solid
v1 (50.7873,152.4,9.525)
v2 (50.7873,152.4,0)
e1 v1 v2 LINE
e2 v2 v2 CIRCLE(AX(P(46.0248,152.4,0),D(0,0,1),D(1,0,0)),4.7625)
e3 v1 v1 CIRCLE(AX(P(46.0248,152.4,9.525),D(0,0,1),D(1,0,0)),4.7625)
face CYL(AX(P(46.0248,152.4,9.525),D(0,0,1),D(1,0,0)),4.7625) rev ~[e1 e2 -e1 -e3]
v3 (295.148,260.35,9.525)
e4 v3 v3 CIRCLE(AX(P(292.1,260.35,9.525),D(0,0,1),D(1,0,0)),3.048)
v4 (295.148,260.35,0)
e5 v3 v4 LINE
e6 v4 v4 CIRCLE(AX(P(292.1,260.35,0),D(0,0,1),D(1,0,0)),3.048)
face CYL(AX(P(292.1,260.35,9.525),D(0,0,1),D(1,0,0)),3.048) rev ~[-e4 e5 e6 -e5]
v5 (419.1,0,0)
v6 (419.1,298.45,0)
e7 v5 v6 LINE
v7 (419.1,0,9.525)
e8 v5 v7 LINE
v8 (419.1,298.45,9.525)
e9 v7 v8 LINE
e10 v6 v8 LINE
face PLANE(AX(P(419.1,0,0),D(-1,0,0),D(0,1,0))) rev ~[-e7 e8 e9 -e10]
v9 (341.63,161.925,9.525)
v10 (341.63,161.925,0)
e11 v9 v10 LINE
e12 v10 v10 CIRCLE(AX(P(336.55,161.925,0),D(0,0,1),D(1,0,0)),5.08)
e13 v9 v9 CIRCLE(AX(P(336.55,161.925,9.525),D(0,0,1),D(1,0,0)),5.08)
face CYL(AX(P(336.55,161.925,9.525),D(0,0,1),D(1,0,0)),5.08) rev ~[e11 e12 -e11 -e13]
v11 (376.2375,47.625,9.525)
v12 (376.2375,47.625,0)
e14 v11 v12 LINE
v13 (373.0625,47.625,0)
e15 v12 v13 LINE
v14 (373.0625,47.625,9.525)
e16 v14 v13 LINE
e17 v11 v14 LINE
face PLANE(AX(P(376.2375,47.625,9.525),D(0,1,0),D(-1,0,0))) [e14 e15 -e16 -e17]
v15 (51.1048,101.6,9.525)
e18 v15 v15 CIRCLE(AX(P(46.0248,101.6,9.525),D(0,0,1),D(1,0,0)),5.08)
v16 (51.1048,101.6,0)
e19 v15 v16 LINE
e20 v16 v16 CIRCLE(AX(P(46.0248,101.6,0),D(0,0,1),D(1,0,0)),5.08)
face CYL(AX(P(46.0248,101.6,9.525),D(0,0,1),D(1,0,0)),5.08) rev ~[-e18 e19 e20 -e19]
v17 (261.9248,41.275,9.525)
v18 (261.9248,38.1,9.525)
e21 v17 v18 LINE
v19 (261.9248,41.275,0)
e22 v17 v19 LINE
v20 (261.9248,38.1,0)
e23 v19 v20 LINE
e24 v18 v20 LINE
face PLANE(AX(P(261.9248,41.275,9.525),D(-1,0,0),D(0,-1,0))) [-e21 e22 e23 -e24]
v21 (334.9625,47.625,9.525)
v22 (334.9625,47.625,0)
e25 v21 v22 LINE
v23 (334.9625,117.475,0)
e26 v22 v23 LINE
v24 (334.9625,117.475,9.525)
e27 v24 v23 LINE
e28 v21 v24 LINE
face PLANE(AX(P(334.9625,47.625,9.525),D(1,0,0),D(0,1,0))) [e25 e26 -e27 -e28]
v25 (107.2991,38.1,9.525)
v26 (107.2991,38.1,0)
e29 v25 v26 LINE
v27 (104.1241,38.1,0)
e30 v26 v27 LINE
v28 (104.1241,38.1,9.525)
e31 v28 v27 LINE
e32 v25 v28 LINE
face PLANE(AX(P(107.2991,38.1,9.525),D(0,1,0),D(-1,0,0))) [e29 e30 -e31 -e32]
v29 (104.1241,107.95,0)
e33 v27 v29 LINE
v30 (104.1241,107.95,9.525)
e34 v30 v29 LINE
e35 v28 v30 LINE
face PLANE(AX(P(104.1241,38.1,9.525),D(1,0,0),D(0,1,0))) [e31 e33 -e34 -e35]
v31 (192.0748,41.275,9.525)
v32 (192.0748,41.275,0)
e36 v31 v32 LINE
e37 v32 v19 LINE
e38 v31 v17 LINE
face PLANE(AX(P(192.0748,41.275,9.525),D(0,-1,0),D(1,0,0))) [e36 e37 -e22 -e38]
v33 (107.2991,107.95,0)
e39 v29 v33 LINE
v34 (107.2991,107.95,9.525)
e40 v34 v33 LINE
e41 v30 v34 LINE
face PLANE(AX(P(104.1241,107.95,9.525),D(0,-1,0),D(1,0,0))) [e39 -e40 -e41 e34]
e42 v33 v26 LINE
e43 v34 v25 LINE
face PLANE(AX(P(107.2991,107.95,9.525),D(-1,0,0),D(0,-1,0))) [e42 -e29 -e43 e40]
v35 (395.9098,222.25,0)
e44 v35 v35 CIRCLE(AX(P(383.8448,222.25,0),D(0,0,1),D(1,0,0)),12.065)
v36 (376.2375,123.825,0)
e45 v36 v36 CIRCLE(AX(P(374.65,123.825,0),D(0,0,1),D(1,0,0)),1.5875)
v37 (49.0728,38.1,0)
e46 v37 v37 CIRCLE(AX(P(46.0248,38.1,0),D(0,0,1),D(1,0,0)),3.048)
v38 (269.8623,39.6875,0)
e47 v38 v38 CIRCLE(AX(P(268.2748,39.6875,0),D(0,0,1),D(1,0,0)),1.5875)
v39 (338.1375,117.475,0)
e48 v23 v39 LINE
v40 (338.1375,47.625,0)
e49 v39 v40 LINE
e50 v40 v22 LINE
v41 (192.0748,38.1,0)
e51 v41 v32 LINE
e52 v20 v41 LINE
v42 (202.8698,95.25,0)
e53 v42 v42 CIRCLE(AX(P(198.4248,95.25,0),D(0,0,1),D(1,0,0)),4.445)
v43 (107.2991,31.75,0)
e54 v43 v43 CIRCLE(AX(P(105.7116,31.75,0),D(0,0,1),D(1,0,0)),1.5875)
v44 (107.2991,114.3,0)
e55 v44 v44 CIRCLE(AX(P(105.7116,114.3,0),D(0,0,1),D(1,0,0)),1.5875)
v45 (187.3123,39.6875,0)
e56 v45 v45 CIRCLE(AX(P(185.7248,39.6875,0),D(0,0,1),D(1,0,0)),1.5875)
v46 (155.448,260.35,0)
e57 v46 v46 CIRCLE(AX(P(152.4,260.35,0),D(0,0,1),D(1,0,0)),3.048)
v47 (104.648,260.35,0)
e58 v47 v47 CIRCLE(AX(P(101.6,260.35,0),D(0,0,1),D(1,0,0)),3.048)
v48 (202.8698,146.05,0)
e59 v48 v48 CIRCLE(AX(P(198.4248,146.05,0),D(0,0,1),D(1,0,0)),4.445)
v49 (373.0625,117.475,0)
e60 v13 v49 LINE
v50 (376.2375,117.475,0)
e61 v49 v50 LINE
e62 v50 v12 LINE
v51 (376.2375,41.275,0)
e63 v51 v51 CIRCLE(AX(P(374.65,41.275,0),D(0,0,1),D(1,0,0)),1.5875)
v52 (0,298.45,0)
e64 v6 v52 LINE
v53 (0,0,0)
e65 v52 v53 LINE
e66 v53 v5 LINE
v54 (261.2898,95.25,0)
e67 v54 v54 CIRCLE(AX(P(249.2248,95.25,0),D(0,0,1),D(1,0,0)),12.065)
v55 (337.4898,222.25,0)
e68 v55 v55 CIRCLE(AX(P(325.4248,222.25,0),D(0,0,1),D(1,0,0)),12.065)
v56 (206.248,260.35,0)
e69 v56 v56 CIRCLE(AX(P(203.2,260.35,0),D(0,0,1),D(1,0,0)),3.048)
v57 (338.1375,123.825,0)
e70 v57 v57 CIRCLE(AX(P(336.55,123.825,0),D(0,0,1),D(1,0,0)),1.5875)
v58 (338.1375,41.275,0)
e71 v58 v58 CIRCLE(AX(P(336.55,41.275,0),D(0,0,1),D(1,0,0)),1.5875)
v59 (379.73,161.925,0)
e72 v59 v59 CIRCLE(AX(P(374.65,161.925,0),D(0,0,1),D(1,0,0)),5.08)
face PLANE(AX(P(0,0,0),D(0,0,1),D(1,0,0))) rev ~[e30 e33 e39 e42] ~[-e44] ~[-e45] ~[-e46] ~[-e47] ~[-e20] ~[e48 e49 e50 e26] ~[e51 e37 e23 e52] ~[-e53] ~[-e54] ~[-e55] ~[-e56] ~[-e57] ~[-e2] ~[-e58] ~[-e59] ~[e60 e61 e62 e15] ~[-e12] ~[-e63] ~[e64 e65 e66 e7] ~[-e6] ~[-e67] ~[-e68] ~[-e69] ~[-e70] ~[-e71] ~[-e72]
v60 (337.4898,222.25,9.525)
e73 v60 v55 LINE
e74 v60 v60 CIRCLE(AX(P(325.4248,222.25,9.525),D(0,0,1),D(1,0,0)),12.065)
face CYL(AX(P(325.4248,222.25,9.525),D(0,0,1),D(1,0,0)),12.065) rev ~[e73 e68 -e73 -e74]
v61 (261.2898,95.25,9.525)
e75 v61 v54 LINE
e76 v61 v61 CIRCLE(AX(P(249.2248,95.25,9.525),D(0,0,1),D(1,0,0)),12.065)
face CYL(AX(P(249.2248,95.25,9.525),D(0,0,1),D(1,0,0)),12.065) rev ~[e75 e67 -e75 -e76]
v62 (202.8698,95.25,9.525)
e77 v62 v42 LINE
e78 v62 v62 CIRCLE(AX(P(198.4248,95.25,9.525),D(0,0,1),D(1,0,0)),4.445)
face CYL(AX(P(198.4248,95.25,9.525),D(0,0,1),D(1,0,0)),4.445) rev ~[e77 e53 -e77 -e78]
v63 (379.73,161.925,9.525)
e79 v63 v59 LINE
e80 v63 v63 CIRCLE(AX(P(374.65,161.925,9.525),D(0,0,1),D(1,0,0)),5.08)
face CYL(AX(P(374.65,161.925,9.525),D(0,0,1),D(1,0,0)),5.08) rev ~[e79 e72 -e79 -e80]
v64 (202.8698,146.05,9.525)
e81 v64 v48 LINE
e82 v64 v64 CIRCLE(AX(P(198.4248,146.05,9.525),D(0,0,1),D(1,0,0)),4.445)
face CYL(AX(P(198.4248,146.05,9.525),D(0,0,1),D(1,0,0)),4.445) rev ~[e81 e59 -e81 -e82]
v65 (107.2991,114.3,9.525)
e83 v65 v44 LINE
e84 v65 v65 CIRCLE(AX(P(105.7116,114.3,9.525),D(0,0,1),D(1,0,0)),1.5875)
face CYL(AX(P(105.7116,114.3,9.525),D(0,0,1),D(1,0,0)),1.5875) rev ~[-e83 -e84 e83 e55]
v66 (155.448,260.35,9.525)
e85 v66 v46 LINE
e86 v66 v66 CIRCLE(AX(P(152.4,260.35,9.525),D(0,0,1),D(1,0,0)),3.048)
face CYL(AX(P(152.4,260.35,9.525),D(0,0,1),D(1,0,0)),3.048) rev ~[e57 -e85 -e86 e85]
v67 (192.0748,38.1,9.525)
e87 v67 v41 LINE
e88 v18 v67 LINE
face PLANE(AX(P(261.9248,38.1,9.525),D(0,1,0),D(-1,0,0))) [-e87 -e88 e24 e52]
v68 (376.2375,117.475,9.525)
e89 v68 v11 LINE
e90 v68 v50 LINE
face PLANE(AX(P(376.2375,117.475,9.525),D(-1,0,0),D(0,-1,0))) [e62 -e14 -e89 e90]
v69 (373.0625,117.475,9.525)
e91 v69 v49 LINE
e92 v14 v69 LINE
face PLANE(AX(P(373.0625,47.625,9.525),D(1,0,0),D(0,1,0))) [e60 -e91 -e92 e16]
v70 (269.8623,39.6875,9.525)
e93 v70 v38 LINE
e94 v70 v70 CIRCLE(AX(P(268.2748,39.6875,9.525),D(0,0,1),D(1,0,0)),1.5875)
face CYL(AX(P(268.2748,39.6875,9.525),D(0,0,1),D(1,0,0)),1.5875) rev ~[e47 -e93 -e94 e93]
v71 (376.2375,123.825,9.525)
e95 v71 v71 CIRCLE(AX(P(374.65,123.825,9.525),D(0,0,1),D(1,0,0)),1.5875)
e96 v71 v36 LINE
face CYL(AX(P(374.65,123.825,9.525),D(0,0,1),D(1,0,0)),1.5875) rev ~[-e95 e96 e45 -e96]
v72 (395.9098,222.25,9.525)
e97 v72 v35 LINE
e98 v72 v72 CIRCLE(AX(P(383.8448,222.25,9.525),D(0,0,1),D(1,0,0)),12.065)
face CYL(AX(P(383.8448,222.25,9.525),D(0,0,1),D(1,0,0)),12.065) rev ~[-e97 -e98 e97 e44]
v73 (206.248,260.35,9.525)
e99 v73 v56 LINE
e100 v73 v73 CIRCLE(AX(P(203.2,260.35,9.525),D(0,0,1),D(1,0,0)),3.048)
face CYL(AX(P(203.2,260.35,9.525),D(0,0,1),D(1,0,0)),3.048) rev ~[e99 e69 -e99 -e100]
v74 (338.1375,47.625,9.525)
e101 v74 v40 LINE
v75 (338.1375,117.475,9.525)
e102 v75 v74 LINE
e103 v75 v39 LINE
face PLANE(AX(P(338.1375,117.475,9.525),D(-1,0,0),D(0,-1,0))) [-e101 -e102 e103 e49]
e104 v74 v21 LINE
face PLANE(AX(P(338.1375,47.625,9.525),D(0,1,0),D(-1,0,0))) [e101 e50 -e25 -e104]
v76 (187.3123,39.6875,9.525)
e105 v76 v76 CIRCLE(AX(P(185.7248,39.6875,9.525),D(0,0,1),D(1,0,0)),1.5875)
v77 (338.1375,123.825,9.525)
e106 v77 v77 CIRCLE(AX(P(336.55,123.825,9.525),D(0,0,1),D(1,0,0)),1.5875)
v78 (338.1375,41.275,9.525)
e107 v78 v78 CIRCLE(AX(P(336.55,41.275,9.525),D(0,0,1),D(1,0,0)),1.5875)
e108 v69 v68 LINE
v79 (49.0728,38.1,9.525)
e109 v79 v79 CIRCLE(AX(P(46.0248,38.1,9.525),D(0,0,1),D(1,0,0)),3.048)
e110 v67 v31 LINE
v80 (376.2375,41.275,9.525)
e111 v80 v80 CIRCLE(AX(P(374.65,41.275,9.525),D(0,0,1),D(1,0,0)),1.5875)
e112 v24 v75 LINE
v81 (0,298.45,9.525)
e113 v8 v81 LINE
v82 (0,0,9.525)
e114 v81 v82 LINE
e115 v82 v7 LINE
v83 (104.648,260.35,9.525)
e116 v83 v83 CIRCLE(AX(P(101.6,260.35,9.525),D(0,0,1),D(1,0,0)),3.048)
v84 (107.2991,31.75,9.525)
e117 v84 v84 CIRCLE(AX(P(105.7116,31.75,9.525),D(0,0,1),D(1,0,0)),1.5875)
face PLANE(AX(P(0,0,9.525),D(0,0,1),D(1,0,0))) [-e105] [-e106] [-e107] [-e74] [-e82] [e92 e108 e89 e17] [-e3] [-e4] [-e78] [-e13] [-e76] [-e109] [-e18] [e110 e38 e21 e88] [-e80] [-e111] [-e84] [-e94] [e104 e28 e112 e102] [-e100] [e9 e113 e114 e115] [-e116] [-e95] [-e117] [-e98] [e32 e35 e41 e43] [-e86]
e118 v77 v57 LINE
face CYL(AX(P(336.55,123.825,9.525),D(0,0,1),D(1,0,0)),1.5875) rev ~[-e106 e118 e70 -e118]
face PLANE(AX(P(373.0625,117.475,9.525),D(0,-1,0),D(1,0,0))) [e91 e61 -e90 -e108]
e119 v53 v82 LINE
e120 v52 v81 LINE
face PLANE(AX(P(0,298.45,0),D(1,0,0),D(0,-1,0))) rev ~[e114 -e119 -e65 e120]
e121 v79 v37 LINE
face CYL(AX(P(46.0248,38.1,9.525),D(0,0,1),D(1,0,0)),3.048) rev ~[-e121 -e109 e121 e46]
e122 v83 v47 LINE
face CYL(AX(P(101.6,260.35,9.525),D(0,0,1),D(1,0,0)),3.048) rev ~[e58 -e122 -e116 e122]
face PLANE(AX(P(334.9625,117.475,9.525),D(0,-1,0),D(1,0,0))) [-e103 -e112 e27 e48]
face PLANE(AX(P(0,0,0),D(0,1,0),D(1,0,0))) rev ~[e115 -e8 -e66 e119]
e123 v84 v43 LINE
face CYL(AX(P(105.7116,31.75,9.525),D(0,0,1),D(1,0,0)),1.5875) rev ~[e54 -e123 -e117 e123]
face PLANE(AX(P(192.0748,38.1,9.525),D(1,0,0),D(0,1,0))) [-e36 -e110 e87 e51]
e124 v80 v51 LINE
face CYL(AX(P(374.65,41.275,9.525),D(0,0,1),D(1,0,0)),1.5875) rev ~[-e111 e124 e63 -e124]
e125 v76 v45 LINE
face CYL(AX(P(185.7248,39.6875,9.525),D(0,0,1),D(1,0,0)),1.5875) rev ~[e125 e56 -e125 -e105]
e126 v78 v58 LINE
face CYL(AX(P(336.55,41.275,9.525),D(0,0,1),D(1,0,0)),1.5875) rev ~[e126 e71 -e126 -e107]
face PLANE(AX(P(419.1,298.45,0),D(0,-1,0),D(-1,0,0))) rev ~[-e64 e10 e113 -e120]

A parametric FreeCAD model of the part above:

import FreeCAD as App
import Part
import Sketcher
from FreeCAD import Vector
Q = App.Units.Quantity

doc = App.newDocument("Part")
body = doc.addObject("PartDesign::Body", "Body")

# Sketch on XY plane
sketch1 = body.newObject("Sketcher::SketchObject", "Sketch")
sketch1.AttachmentSupport = (doc.getObject("XY_Plane"), [""])
sketch1.MapMode = "FlatFace"
sketch1.addGeometry([
    Part.LineSegment(Vector(0, 298, 0), Vector(0, 0, 0)),
    Part.LineSegment(Vector(0, 0, 0), Vector(419, 0, 0)),
    Part.LineSegment(Vector(419, 0, 0), Vector(419, 298, 0)),
    Part.LineSegment(Vector(419, 298, 0), Vector(0, 298, 0)),
], False)
sketch1.addConstraint([
    Sketcher.Constraint("Coincident", 0, 2, 1, 1),
    Sketcher.Constraint("Coincident", 1, 2, 2, 1),
    Sketcher.Constraint("Coincident", 2, 2, 3, 1),
    Sketcher.Constraint("Coincident", 3, 2, 0, 1),
    Sketcher.Constraint("Vertical", 0),
    Sketcher.Constraint("Horizontal", 1),
    Sketcher.Constraint("Vertical", 2),
    Sketcher.Constraint("Horizontal", 3),
    Sketcher.Constraint("Coincident", 0, 2, -1, 1),
    Sketcher.Constraint("DistanceX", 1, 1, 1, 2, Q("16.5 in")),
    Sketcher.Constraint("DistanceY", 0, 2, 0, 1, Q("11.75 in")),
])
pad1 = body.newObject("PartDesign::Pad", "Pad")
pad1.Profile = sketch1
pad1.Length = Q("0.375 in")

# Sketch on XY plane
sketch2 = body.newObject("Sketcher::SketchObject", "Sketch001")
sketch2.AttachmentSupport = (doc.getObject("XY_Plane"), [""])
sketch2.MapMode = "FlatFace"
sketch2.AttachmentOffset = App.Placement(Vector(0, 0, 0.375 * 25.4), App.Rotation())
sketch2.addGeometry([
    Part.LineSegment(Vector(376.2, 117.5, 0), Vector(373.1, 117.5, 0)),  # 0
    Part.LineSegment(Vector(373.1, 117.5, 0), Vector(373.1, 47.6, 0)),  # 1
    Part.LineSegment(Vector(373.1, 47.6, 0), Vector(376.2, 47.6, 0)),  # 2
    Part.LineSegment(Vector(376.2, 47.6, 0), Vector(376.2, 117.5, 0)),  # 3
    Part.Circle(Vector(374.6, 41.3, 0), Vector(0, 0, 1), 1.6),  # 4
    Part.Circle(Vector(374.6, 123.8, 0), Vector(0, 0, 1), 1.6),  # 5
    Part.Circle(Vector(374.6, 161.9, 0), Vector(0, 0, 1), 5.1),  # 6
    Part.Circle(Vector(336.6, 41.3, 0), Vector(0, 0, 1), 1.6),  # 7
    Part.LineSegment(Vector(335, 47.6, 0), Vector(338.1, 47.6, 0)),  # 8
    Part.LineSegment(Vector(338.1, 47.6, 0), Vector(338.1, 117.5, 0)),  # 9
    Part.LineSegment(Vector(338.1, 117.5, 0), Vector(335, 117.5, 0)),  # 10
    Part.LineSegment(Vector(335, 117.5, 0), Vector(335, 47.6, 0)),  # 11
    Part.Circle(Vector(336.6, 123.8, 0), Vector(0, 0, 1), 1.6),  # 12
    Part.Circle(Vector(336.6, 161.9, 0), Vector(0, 0, 1), 5.1),  # 13
    Part.Circle(Vector(383.8, 222.2, 0), Vector(0, 0, 1), 12.1),  # 14
    Part.Circle(Vector(325.4, 222.2, 0), Vector(0, 0, 1), 12.1),  # 15
], False)
sketch2.addConstraint([
    Sketcher.Constraint("Coincident", 0, 2, 1, 1),
    Sketcher.Constraint("Coincident", 1, 2, 2, 1),
    Sketcher.Constraint("Coincident", 2, 2, 3, 1),
    Sketcher.Constraint("Coincident", 3, 2, 0, 1),
    Sketcher.Constraint("Coincident", 8, 2, 9, 1),
    Sketcher.Constraint("Coincident", 9, 2, 10, 1),
    Sketcher.Constraint("Coincident", 10, 2, 11, 1),
    Sketcher.Constraint("Coincident", 11, 2, 8, 1),
    Sketcher.Constraint("Horizontal", 0),
    Sketcher.Constraint("Vertical", 1),
    Sketcher.Constraint("Horizontal", 2),
    Sketcher.Constraint("Vertical", 3),
    Sketcher.Constraint("Horizontal", 8),
    Sketcher.Constraint("Vertical", 9),
    Sketcher.Constraint("Horizontal", 10),
    Sketcher.Constraint("Vertical", 11),
    Sketcher.Constraint("Equal", 4, 5),
    Sketcher.Constraint("Equal", 5, 7),
    Sketcher.Constraint("Equal", 7, 12),
    Sketcher.Constraint("Equal", 6, 13),
    Sketcher.Constraint("Equal", 14, 15),
    Sketcher.Constraint("Horizontal", 4, 3, 7, 3),
    Sketcher.Constraint("Horizontal", 5, 3, 12, 3),
    Sketcher.Constraint("Horizontal", 6, 3, 13, 3),
    Sketcher.Constraint("Horizontal", 14, 3, 15, 3),
    Sketcher.Constraint("Horizontal", 2, 2, 8, 2),
    Sketcher.Constraint("Horizontal", 3, 2, 9, 2),
    Sketcher.Constraint("Vertical", 4, 3, 5, 3),
    Sketcher.Constraint("Vertical", 5, 3, 6, 3),
    Sketcher.Constraint("Vertical", 7, 3, 12, 3),
    Sketcher.Constraint("Vertical", 12, 3, 13, 3),
    Sketcher.Constraint("Equal", 2, 8),
    Sketcher.Constraint("Diameter", 6, Q("0.4 in")),
    Sketcher.Constraint("Diameter", 14, Q("0.95 in")),
    Sketcher.Constraint("Diameter", 4, Q("0.125 in")),
    Sketcher.Constraint("DistanceY", 1, 2, 1, 1, Q("2.75 in")),
    Sketcher.Constraint("DistanceY", 5, 3, 6, 3, Q("1.5 in")),
    Sketcher.Constraint("DistanceX", 7, 3, 4, 3, Q("1.5 in")),
    Sketcher.Constraint("DistanceX", 15, 3, 14, 3, Q("2.3 in")),
    Sketcher.Constraint("DistanceX", 8, 2, 2, 2, Q("1.5 in")),
    Sketcher.Constraint("DistanceX", 0, 2, 0, 1, Q("0.125 in")),
    Sketcher.Constraint("DistanceY", 0, 2, 5, 3, Q("0.25 in")),
    Sketcher.Constraint("DistanceY", 4, 3, 1, 2, Q("0.25 in")),
    Sketcher.Constraint("DistanceY", -1, 1, 1, 2, Q("1.875 in")),
    Sketcher.Constraint("DistanceY", 6, 3, 14, 3, Q("2.375 in")),
    Sketcher.Constraint("DistanceX", -1, 1, 4, 3, Q("14.75 in")),
    Sketcher.Constraint("DistanceX", -1, 1, 14, 3, Q("15.112 in")),
    Sketcher.Constraint("DistanceX", -1, 1, 0, 2, Q("14.6875 in")),
])
pocket1 = body.newObject("PartDesign::Pocket", "Pocket")
pocket1.Profile = sketch2
pocket1.Length = Q("0.375 in")

# Sketch on XY plane
sketch3 = body.newObject("Sketcher::SketchObject", "Sketch002")
sketch3.AttachmentSupport = (doc.getObject("XY_Plane"), [""])
sketch3.MapMode = "FlatFace"
sketch3.AttachmentOffset = App.Placement(Vector(0, 0, 0.375 * 25.4), App.Rotation())
sketch3.addGeometry([
    Part.LineSegment(Vector(192.1, 38.1, 0), Vector(261.9, 38.1, 0)),  # 0
    Part.LineSegment(Vector(261.9, 38.1, 0), Vector(261.9, 41.3, 0)),  # 1
    Part.LineSegment(Vector(261.9, 41.3, 0), Vector(192.1, 41.3, 0)),  # 2
    Part.LineSegment(Vector(192.1, 41.3, 0), Vector(192.1, 38.1, 0)),  # 3
    Part.Circle(Vector(185.7, 39.7, 0), Vector(0, 0, 1), 1.6),  # 4
    Part.Circle(Vector(268.3, 39.7, 0), Vector(0, 0, 1), 1.6),  # 5
    Part.Circle(Vector(249.2, 95.2, 0), Vector(0, 0, 1), 12.1),  # 6
    Part.Circle(Vector(198.4, 95.2, 0), Vector(0, 0, 1), 4.4),  # 7
    Part.Circle(Vector(198.4, 146.1, 0), Vector(0, 0, 1), 4.4),  # 8
], False)
sketch3.addConstraint([
    Sketcher.Constraint("Coincident", 0, 2, 1, 1),
    Sketcher.Constraint("Coincident", 1, 2, 2, 1),
    Sketcher.Constraint("Coincident", 2, 2, 3, 1),
    Sketcher.Constraint("Coincident", 3, 2, 0, 1),
    Sketcher.Constraint("Horizontal", 0),
    Sketcher.Constraint("Vertical", 1),
    Sketcher.Constraint("Horizontal", 2),
    Sketcher.Constraint("Vertical", 3),
    Sketcher.Constraint("Equal", 4, 5),
    Sketcher.Constraint("Equal", 7, 8),
    Sketcher.Constraint("Horizontal", 4, 3, 5, 3),
    Sketcher.Constraint("Horizontal", 6, 3, 7, 3),
    Sketcher.Constraint("Vertical", 7, 3, 8, 3),
    Sketcher.Constraint("Diameter", 6, Q("0.95 in")),
    Sketcher.Constraint("Diameter", 7, Q("0.35 in")),
    Sketcher.Constraint("Diameter", 4, Q("0.125 in")),
    Sketcher.Constraint("DistanceX", 7, 3, 6, 3, Q("2 in")),
    Sketcher.Constraint("DistanceY", 7, 3, 8, 3, Q("2 in")),
    Sketcher.Constraint("DistanceX", 0, 1, 0, 2, Q("2.75 in")),
    Sketcher.Constraint("DistanceY", -1, 1, 0, 2, Q("1.5 in")),
    Sketcher.Constraint("DistanceY", 1, 1, 1, 2, Q("0.125 in")),
    Sketcher.Constraint("DistanceY", -1, 1, 6, 3, Q("3.75 in")),
    Sketcher.Constraint("DistanceX", 7, 3, 5, 3, Q("2.75 in")),
    Sketcher.Constraint("DistanceX", 0, 2, 5, 3, Q("0.25 in")),
    Sketcher.Constraint("DistanceX", 4, 3, 2, 2, Q("0.25 in")),
    Sketcher.Constraint("DistanceX", -1, 1, 4, 3, Q("7.312 in")),
    Sketcher.Constraint("DistanceY", -1, 1, 4, 3, Q("1.5625 in")),
])
pocket2 = body.newObject("PartDesign::Pocket", "Pocket001")
pocket2.Profile = sketch3
pocket2.Length = Q("0.375 in")

# Sketch on XY plane
sketch4 = body.newObject("Sketcher::SketchObject", "Sketch003")
sketch4.AttachmentSupport = (doc.getObject("XY_Plane"), [""])
sketch4.MapMode = "FlatFace"
sketch4.AttachmentOffset = App.Placement(Vector(0, 0, 0.375 * 25.4), App.Rotation())
sketch4.addGeometry([
    Part.LineSegment(Vector(107.3, 108, 0), Vector(104.1, 108, 0)),  # 0
    Part.LineSegment(Vector(104.1, 108, 0), Vector(104.1, 38.1, 0)),  # 1
    Part.LineSegment(Vector(104.1, 38.1, 0), Vector(107.3, 38.1, 0)),  # 2
    Part.LineSegment(Vector(107.3, 38.1, 0), Vector(107.3, 108, 0)),  # 3
    Part.Circle(Vector(105.7, 31.8, 0), Vector(0, 0, 1), 1.6),  # 4
    Part.Circle(Vector(105.7, 114.3, 0), Vector(0, 0, 1), 1.6),  # 5
    Part.Circle(Vector(46, 101.6, 0), Vector(0, 0, 1), 5.1),  # 6
    Part.Circle(Vector(46, 38.1, 0), Vector(0, 0, 1), 3),  # 7
    Part.Circle(Vector(46, 152.4, 0), Vector(0, 0, 1), 4.8),  # 8
], False)
sketch4.addConstraint([
    Sketcher.Constraint("Coincident", 0, 2, 1, 1),
    Sketcher.Constraint("Coincident", 1, 2, 2, 1),
    Sketcher.Constraint("Coincident", 2, 2, 3, 1),
    Sketcher.Constraint("Coincident", 3, 2, 0, 1),
    Sketcher.Constraint("Horizontal", 0),
    Sketcher.Constraint("Vertical", 1),
    Sketcher.Constraint("Horizontal", 2),
    Sketcher.Constraint("Vertical", 3),
    Sketcher.Constraint("Equal", 4, 5),
    Sketcher.Constraint("Horizontal", 7, 3, 1, 2),
    Sketcher.Constraint("Vertical", 4, 3, 5, 3),
    Sketcher.Constraint("Vertical", 6, 3, 7, 3),
    Sketcher.Constraint("Vertical", 7, 3, 8, 3),
    Sketcher.Constraint("Diameter", 6, Q("0.4 in")),
    Sketcher.Constraint("Diameter", 7, Q("0.24 in")),
    Sketcher.Constraint("Diameter", 4, Q("0.125 in")),
    Sketcher.Constraint("Diameter", 8, Q("0.375 in")),
    Sketcher.Constraint("DistanceY", -1, 1, 6, 3, Q("4 in")),
    Sketcher.Constraint("DistanceY", 6, 3, 8, 3, Q("2 in")),
    Sketcher.Constraint("DistanceY", 1, 2, 1, 1, Q("2.75 in")),
    Sketcher.Constraint("DistanceY", -1, 1, 5, 3, Q("4.5 in")),
    Sketcher.Constraint("DistanceY", -1, 1, 7, 3, Q("1.5 in")),
    Sketcher.Constraint("DistanceX", 0, 2, 0, 1, Q("0.125 in")),
    Sketcher.Constraint("DistanceY", 4, 3, 6, 3, Q("2.75 in")),
    Sketcher.Constraint("DistanceX", -1, 1, 6, 3, Q("1.812 in")),
    Sketcher.Constraint("DistanceX", 0, 2, 5, 3, Q("0.0625 in")),
    Sketcher.Constraint("DistanceX", -1, 1, 4, 3, Q("105.7116 mm")),
])
pocket3 = body.newObject("PartDesign::Pocket", "Pocket002")
pocket3.Profile = sketch4
pocket3.Length = Q("0.375 in")

# Sketch on XY plane
sketch5 = body.newObject("Sketcher::SketchObject", "Sketch004")
sketch5.AttachmentSupport = (doc.getObject("XY_Plane"), [""])
sketch5.MapMode = "FlatFace"
sketch5.AttachmentOffset = App.Placement(Vector(0, 0, 0.375 * 25.4), App.Rotation())
sketch5.addGeometry([
    Part.Circle(Vector(101.6, 260.4, 0), Vector(0, 0, 1), 3),
    Part.Circle(Vector(152.4, 260.4, 0), Vector(0, 0, 1), 3),
    Part.Circle(Vector(203.2, 260.4, 0), Vector(0, 0, 1), 3),
    Part.Circle(Vector(292.1, 260.4, 0), Vector(0, 0, 1), 3),
], False)
sketch5.addConstraint([
    Sketcher.Constraint("Equal", 0, 1),
    Sketcher.Constraint("Equal", 1, 2),
    Sketcher.Constraint("Equal", 2, 3),
    Sketcher.Constraint("Horizontal", 0, 3, 1, 3),
    Sketcher.Constraint("Horizontal", 1, 3, 2, 3),
    Sketcher.Constraint("Horizontal", 2, 3, 3, 3),
    Sketcher.Constraint("Diameter", 0, Q("0.24 in")),
    Sketcher.Constraint("DistanceX", -1, 1, 0, 3, Q("4 in")),
    Sketcher.Constraint("DistanceX", 0, 3, 1, 3, Q("2 in")),
    Sketcher.Constraint("DistanceX", 1, 3, 2, 3, Q("2 in")),
    Sketcher.Constraint("DistanceX", 2, 3, 3, 3, Q("3.5 in")),
    Sketcher.Constraint("DistanceY", -1, 1, 0, 3, Q("10.25 in")),
])
pocket4 = body.newObject("PartDesign::Pocket", "Pocket003")
pocket4.Profile = sketch5
pocket4.Length = Q("0.375 in")

doc.recompute()
